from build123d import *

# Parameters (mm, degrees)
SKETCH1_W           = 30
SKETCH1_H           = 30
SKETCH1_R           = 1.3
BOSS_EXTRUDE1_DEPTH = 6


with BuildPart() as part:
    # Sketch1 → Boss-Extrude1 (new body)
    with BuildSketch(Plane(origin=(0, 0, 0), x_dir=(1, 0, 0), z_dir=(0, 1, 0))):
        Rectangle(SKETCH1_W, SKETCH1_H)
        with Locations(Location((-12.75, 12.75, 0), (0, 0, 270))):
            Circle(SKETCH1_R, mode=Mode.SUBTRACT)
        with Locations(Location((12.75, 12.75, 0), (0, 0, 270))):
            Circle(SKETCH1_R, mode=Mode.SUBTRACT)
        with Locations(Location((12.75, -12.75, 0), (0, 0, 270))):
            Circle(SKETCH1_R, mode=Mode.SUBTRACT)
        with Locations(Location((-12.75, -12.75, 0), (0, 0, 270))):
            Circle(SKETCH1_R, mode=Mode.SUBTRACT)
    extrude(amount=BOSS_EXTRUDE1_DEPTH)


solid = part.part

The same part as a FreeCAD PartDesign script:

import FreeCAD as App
import Part
import Sketcher
from FreeCAD import Vector
Q = App.Units.Quantity


def add_polygon(sketch, points):
    """Adds a closed chain of lines whose ends are joined by coincident constraints."""
    first, n = sketch.GeometryCount, len(points)
    for a, b in zip(points, points[1:] + points[:1]):
        sketch.addGeometry(Part.LineSegment(App.Vector(*a, 0), App.Vector(*b, 0)), False)
    for i in range(n):
        sketch.addConstraint(Sketcher.Constraint("Coincident", first + i, 2, first + (i + 1) % n, 1))

doc = App.newDocument("Part")
body = doc.addObject("PartDesign::Body", "Body")

sketch1 = body.newObject("Sketcher::SketchObject", "Sketch")
sketch1.AttachmentSupport = (doc.getObject("XZ_Plane"), [""])
sketch1.MapMode = "FlatFace"
add_polygon(sketch1, [(-15, -15), (-15, 15), (15, 15), (15, -15)])
sketch1.addGeometry(Part.Circle(Vector(-12.8, 12.8, 0), Vector(0, 0, 1), 1.3), False)
sketch1.addGeometry(Part.Circle(Vector(12.8, 12.8, 0), Vector(0, 0, 1), 1.3), False)
sketch1.addGeometry(Part.Circle(Vector(-12.8, -12.8, 0), Vector(0, 0, 1), 1.3), False)
sketch1.addGeometry(Part.Circle(Vector(12.8, -12.8, 0), Vector(0, 0, 1), 1.3), False)
sketch1.addConstraint(Sketcher.Constraint("Vertical", 0))
sketch1.addConstraint(Sketcher.Constraint("Horizontal", 1))
sketch1.addConstraint(Sketcher.Constraint("Vertical", 2))
sketch1.addConstraint(Sketcher.Constraint("Horizontal", 3))
sketch1.addConstraint(Sketcher.Constraint("Equal", 4, 5))
sketch1.addConstraint(Sketcher.Constraint("Equal", 5, 6))
sketch1.addConstraint(Sketcher.Constraint("Equal", 6, 7))
sketch1.addConstraint(Sketcher.Constraint("Symmetric", 5, 3, 6, 3, -1, 1))
sketch1.addConstraint(Sketcher.Constraint("Symmetric", 4, 3, 7, 3, -1, 1))
sketch1.addConstraint(Sketcher.Constraint("Symmetric", 0, 2, 2, 2, -1, 1))
sketch1.addConstraint(Sketcher.Constraint("Symmetric", 4, 3, 5, 3, -2))
sketch1.addConstraint(Sketcher.Constraint("Equal", 3, 0))
sketch1.addConstraint(Sketcher.Constraint("Diameter", 4, Q("2.6 mm")))
sketch1.addConstraint(Sketcher.Constraint("DistanceX", 1, 1, 1, 2, Q("30 mm")))
sketch1.addConstraint(Sketcher.Constraint("DistanceX", 4, 3, 5, 3, Q("25.5 mm")))
sketch1.addConstraint(Sketcher.Constraint("DistanceY", 6, 3, 4, 3, Q("25.5 mm")))
pad1 = body.newObject("PartDesign::Pad", "Pad")
pad1.Profile = sketch1
pad1.Length = 6
pad1.Reversed = True

doc.recompute()
